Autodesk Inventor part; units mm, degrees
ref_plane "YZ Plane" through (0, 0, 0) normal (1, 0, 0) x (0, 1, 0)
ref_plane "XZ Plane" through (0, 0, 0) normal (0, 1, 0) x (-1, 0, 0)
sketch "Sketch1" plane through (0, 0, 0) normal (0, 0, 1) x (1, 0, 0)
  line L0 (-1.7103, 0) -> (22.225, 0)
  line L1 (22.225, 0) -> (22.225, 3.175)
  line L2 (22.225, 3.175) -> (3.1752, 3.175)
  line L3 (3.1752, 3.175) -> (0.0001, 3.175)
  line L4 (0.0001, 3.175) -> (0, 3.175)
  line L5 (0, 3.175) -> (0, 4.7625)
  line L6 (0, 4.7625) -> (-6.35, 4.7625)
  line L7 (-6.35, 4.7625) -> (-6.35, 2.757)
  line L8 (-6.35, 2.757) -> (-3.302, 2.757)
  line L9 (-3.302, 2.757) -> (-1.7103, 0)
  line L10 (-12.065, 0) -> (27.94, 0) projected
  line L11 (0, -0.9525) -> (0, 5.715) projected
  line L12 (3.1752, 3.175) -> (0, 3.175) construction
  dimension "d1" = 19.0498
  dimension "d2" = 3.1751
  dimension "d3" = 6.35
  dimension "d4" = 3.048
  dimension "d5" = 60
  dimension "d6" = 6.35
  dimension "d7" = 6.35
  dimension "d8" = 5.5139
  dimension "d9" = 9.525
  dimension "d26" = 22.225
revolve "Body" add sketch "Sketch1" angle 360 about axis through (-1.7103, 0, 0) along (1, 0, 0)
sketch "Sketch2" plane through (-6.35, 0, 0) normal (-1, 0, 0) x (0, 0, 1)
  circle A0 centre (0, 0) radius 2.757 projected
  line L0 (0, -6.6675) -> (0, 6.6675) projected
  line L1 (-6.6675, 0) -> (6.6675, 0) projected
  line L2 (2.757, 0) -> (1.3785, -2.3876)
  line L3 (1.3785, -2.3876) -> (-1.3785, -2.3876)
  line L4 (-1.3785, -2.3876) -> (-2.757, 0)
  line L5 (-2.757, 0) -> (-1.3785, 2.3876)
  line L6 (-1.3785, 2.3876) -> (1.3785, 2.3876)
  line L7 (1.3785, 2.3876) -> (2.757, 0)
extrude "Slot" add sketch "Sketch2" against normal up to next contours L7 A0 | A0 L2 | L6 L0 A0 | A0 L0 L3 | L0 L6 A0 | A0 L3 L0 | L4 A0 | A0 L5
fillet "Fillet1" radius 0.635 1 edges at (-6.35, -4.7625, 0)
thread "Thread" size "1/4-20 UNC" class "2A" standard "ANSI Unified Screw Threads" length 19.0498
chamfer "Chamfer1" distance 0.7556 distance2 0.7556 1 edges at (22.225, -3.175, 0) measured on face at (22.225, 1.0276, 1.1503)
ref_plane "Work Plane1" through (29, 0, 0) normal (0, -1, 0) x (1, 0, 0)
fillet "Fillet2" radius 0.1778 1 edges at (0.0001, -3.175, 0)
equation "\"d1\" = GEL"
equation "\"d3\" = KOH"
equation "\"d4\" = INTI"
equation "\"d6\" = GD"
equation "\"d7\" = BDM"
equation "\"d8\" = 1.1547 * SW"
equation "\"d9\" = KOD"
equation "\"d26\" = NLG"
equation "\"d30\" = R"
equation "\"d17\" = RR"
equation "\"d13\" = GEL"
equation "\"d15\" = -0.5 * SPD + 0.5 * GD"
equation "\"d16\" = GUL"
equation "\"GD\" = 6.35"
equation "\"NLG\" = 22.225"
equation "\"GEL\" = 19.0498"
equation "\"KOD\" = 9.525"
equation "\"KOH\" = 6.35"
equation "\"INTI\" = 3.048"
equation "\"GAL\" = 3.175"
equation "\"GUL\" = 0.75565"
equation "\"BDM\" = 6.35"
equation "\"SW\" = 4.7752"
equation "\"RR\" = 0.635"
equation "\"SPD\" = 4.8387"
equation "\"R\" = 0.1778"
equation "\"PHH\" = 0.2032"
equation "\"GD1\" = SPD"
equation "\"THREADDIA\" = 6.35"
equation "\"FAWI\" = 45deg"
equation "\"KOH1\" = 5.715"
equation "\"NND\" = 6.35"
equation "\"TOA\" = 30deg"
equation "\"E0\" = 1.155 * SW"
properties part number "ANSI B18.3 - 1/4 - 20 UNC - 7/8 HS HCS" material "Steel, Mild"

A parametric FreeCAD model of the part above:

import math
import FreeCAD as App
import Part
import Sketcher
from FreeCAD import Vector
Q = App.Units.Quantity


def edges_at(feature, points):
    """Names of the edges that pass closest to the given points."""
    edges = feature.Shape.Edges
    near = lambda p: min(range(len(edges)), key=lambda i: edges[i].distToShape(Part.Vertex(*p))[0])
    return sorted({f"Edge{near(p) + 1}" for p in points})


def add_polygon(sketch, points):
    """Adds a closed chain of lines whose ends are joined by coincident constraints."""
    first, n = sketch.GeometryCount, len(points)
    for a, b in zip(points, points[1:] + points[:1]):
        sketch.addGeometry(Part.LineSegment(App.Vector(*a, 0), App.Vector(*b, 0)), False)
    for i in range(n):
        sketch.addConstraint(Sketcher.Constraint("Coincident", first + i, 2, first + (i + 1) % n, 1))

doc = App.newDocument("Part")
body = doc.addObject("PartDesign::Body", "Body")

# Sketch on XY plane
sketch1 = body.newObject("Sketcher::SketchObject", "Sketch")
sketch1.AttachmentSupport = (doc.getObject("XY_Plane"), [""])
sketch1.MapMode = "FlatFace"
add_polygon(sketch1, [(-3.3, 2.8), (-1.7, 0), (22.2, 0), (22.2, 3.2), (0, 3.2), (0, 4.8), (-6.3, 4.8), (-6.3, 2.8)])  # lines 0-7
sketch1.addConstraint([
    Sketcher.Constraint("Horizontal", 1),
    Sketcher.Constraint("Vertical", 2),
    Sketcher.Constraint("Horizontal", 3),
    Sketcher.Constraint("Vertical", 4),
    Sketcher.Constraint("Horizontal", 5),
    Sketcher.Constraint("Vertical", 6),
    Sketcher.Constraint("Horizontal", 7),
    Sketcher.Constraint("PointOnObject", 0, 2, -1),
    Sketcher.Constraint("PointOnObject", 3, 2, -2),
    Sketcher.Constraint("DistanceX", 5, 2, 5, 1, Q("0.25 in")),
    Sketcher.Constraint("DistanceX", 7, 1, 7, 2, Q("0.12 in")),
    Sketcher.Constraint("DistanceX", 3, 2, 3, 1, Q("0.875 in")),
    Sketcher.Constraint("DistanceY", 2, 1, 2, 2, Q("0.125 in")),
    Sketcher.Constraint("Angle", 0, Q("-60.0009 deg")),
    Sketcher.Constraint("DistanceY", 4, 1, 4, 2, Q("0.0625 in")),
    Sketcher.Constraint("DistanceX", 1, 1, 1, 2, 23.9353),
])
revolution = body.newObject("PartDesign::Revolution", "Revolution")
revolution.Profile = sketch1
revolution.ReferenceAxis = (sketch1, ["H_Axis"])
revolution.Angle = 360

# Sketch on YZ plane
sketch2 = body.newObject("Sketcher::SketchObject", "Sketch001")
sketch2.AttachmentSupport = (doc.getObject("YZ_Plane"), [""])
sketch2.MapMode = "FlatFace"
sketch2.AttachmentOffset = App.Placement(Vector(0, 0, -0.25 * 25.4), App.Rotation())
sketch2.addGeometry([
    Part.LineSegment(Vector(2.4, 1.4, 0), Vector(0, 2.8, 0)),  # 0
    Part.ArcOfCircle(Part.Circle(Vector(0, 0, 0), Vector(0, 0, 1), 2.8), math.radians(30), math.radians(90)),  # 1
    Part.ArcOfCircle(Part.Circle(Vector(0, 0, 0), Vector(0, 0, 1), 2.8), math.radians(90), math.radians(150)),  # 2
    Part.LineSegment(Vector(0, 2.8, 0), Vector(-2.4, 1.4, 0)),  # 3
    Part.ArcOfCircle(Part.Circle(Vector(0, 0, 0), Vector(0, 0, 1), 2.8), math.radians(-30), math.radians(30)),  # 4
    Part.LineSegment(Vector(2.4, 1.4, 0), Vector(2.4, -1.4, 0)),  # 5
    Part.LineSegment(Vector(-2.4, 1.4, 0), Vector(-2.4, -1.4, 0)),  # 6
    Part.ArcOfCircle(Part.Circle(Vector(0, 0, 0), Vector(0, 0, 1), 2.8), math.radians(150), math.radians(210)),  # 7
    Part.LineSegment(Vector(-2.4, -1.4, 0), Vector(0, -2.8, 0)),  # 8
    Part.ArcOfCircle(Part.Circle(Vector(0, 0, 0), Vector(0, 0, 1), 2.8), math.radians(-150), math.radians(-90)),  # 9
    Part.ArcOfCircle(Part.Circle(Vector(0, 0, 0), Vector(0, 0, 1), 2.8), math.radians(-90), math.radians(-30)),  # 10
    Part.LineSegment(Vector(0, -2.8, 0), Vector(2.4, -1.4, 0)),  # 11
], False)
sketch2.addConstraint([
    Sketcher.Constraint("Coincident", 0, 1, 1, 1),
    Sketcher.Constraint("Coincident", 1, 2, 0, 2),
    Sketcher.Constraint("Coincident", 2, 1, 3, 1),
    Sketcher.Constraint("Coincident", 3, 2, 2, 2),
    Sketcher.Constraint("Coincident", 4, 1, 5, 2),
    Sketcher.Constraint("Coincident", 5, 1, 4, 2),
    Sketcher.Constraint("Coincident", 6, 1, 7, 1),
    Sketcher.Constraint("Coincident", 7, 2, 6, 2),
    Sketcher.Constraint("Coincident", 8, 1, 9, 1),
    Sketcher.Constraint("Coincident", 9, 2, 8, 2),
    Sketcher.Constraint("Coincident", 10, 1, 11, 1),
    Sketcher.Constraint("Coincident", 11, 2, 10, 2),
    Sketcher.Constraint("Vertical", 5),
    Sketcher.Constraint("Vertical", 6),
    Sketcher.Constraint("Coincident", 1, 3, -1, 1),
    Sketcher.Constraint("Coincident", 2, 3, -1, 1),
    Sketcher.Constraint("Coincident", 4, 3, -1, 1),
    Sketcher.Constraint("Coincident", 7, 3, -1, 1),
    Sketcher.Constraint("Coincident", 9, 3, -1, 1),
    Sketcher.Constraint("Coincident", 10, 3, -1, 1),
    Sketcher.Constraint("Coincident", 2, 1, 1, 2),
    Sketcher.Constraint("Coincident", 5, 1, 0, 1),
    Sketcher.Constraint("Coincident", 6, 1, 3, 2),
    Sketcher.Constraint("Coincident", 8, 1, 7, 2),
    Sketcher.Constraint("Coincident", 10, 1, 9, 2),
    Sketcher.Constraint("PointOnObject", 1, 2, -2),
    Sketcher.Constraint("PointOnObject", 9, 2, -2),
    Sketcher.Constraint("Parallel", 0, 8),
    Sketcher.Constraint("Parallel", 3, 11),
    Sketcher.Constraint("Angle", 0, Q("149.9997 deg")),
    Sketcher.Constraint("Radius", 1, 2.757),
])
pad1 = body.newObject("PartDesign::Pad", "Pad")
pad1.Profile = sketch2
pad1.Type = "UpToFirst"
doc.recompute()

fillet = body.newObject("PartDesign::Fillet", "Fillet")
fillet.Base = (pad1, edges_at(pad1, [(-6.35, -4.763, 0)]))
fillet.Radius = Q("0.025 in")
doc.recompute()

chamfer = body.newObject("PartDesign::Chamfer", "Chamfer")
chamfer.Base = (fillet, edges_at(fillet, [(22.225, -3.175, 0)]))
chamfer.ChamferType = "Two distances"
chamfer.Size = 0.7556
chamfer.Size2 = 0.7556
doc.recompute()

fillet2 = body.newObject("PartDesign::Fillet", "Fillet001")
fillet2.Base = (chamfer, edges_at(chamfer, [(0, -3.175, 0)]))
fillet2.Radius = Q("0.007 in")

doc.recompute()
